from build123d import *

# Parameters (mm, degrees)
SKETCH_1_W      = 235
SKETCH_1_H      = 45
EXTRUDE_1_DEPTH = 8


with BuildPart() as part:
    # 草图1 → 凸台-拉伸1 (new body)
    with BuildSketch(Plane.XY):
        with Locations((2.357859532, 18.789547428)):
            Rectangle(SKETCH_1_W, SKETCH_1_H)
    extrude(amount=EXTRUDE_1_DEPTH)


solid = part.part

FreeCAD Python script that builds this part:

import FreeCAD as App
import Part
import Sketcher

doc = App.newDocument("Part")
params = doc.addObject("Spreadsheet::Sheet", "Params")
for row, (alias, value) in enumerate([
    ("sketch1_width", "235 mm"),
    ("sketch1_height", "45 mm"),
    ("pad1_length", "8 mm"),
], start=1):
    params.set(f"A{row}", alias)
    params.set(f"B{row}", "=" + value)
    params.setAlias(f"B{row}", alias)

body = doc.addObject("PartDesign::Body", "Body")

# Sketch on XY plane
sketch1 = doc.addObject("Sketcher::SketchObject", "Sketch")
body.addObject(sketch1)
sketch1.AttachmentSupport = (doc.XY_Plane, [""])
sketch1.MapMode = "FlatFace"
sketch1.addGeometry([
    Part.LineSegment(App.Vector(-115, 41, 0), App.Vector(-115, -4, 0)),
    Part.LineSegment(App.Vector(-115, -4, 0), App.Vector(120, -4, 0)),
    Part.LineSegment(App.Vector(120, -4, 0), App.Vector(120, 41, 0)),
    Part.LineSegment(App.Vector(120, 41, 0), App.Vector(-115, 41, 0)),
], False)
sketch1.addConstraint([
    Sketcher.Constraint("Coincident", 0, 2, 1, 1),
    Sketcher.Constraint("Coincident", 1, 2, 2, 1),
    Sketcher.Constraint("Coincident", 2, 2, 3, 1),
    Sketcher.Constraint("Coincident", 3, 2, 0, 1),
    Sketcher.Constraint("Vertical", 0),
    Sketcher.Constraint("Horizontal", 1),
    Sketcher.Constraint("Vertical", 2),
    Sketcher.Constraint("Horizontal", 3),
    Sketcher.Constraint("DistanceX", 1, 1, 1, 2, 235.0),
    Sketcher.Constraint("DistanceY", 0, 2, 0, 1, 45.0),
    Sketcher.Constraint("DistanceX", 0, 2, -1, 1, 115.14214),
    Sketcher.Constraint("DistanceY", 0, 2, -1, 1, 3.710453),
])
sketch1.setExpression("Constraints[8]", "Params.sketch1_width")
sketch1.setExpression("Constraints[9]", "Params.sketch1_height")
pad1 = doc.addObject("PartDesign::Pad", "Pad")
body.addObject(pad1)
pad1.Profile = sketch1
pad1.setExpression("Length", "Params.pad1_length")

doc.recompute()
